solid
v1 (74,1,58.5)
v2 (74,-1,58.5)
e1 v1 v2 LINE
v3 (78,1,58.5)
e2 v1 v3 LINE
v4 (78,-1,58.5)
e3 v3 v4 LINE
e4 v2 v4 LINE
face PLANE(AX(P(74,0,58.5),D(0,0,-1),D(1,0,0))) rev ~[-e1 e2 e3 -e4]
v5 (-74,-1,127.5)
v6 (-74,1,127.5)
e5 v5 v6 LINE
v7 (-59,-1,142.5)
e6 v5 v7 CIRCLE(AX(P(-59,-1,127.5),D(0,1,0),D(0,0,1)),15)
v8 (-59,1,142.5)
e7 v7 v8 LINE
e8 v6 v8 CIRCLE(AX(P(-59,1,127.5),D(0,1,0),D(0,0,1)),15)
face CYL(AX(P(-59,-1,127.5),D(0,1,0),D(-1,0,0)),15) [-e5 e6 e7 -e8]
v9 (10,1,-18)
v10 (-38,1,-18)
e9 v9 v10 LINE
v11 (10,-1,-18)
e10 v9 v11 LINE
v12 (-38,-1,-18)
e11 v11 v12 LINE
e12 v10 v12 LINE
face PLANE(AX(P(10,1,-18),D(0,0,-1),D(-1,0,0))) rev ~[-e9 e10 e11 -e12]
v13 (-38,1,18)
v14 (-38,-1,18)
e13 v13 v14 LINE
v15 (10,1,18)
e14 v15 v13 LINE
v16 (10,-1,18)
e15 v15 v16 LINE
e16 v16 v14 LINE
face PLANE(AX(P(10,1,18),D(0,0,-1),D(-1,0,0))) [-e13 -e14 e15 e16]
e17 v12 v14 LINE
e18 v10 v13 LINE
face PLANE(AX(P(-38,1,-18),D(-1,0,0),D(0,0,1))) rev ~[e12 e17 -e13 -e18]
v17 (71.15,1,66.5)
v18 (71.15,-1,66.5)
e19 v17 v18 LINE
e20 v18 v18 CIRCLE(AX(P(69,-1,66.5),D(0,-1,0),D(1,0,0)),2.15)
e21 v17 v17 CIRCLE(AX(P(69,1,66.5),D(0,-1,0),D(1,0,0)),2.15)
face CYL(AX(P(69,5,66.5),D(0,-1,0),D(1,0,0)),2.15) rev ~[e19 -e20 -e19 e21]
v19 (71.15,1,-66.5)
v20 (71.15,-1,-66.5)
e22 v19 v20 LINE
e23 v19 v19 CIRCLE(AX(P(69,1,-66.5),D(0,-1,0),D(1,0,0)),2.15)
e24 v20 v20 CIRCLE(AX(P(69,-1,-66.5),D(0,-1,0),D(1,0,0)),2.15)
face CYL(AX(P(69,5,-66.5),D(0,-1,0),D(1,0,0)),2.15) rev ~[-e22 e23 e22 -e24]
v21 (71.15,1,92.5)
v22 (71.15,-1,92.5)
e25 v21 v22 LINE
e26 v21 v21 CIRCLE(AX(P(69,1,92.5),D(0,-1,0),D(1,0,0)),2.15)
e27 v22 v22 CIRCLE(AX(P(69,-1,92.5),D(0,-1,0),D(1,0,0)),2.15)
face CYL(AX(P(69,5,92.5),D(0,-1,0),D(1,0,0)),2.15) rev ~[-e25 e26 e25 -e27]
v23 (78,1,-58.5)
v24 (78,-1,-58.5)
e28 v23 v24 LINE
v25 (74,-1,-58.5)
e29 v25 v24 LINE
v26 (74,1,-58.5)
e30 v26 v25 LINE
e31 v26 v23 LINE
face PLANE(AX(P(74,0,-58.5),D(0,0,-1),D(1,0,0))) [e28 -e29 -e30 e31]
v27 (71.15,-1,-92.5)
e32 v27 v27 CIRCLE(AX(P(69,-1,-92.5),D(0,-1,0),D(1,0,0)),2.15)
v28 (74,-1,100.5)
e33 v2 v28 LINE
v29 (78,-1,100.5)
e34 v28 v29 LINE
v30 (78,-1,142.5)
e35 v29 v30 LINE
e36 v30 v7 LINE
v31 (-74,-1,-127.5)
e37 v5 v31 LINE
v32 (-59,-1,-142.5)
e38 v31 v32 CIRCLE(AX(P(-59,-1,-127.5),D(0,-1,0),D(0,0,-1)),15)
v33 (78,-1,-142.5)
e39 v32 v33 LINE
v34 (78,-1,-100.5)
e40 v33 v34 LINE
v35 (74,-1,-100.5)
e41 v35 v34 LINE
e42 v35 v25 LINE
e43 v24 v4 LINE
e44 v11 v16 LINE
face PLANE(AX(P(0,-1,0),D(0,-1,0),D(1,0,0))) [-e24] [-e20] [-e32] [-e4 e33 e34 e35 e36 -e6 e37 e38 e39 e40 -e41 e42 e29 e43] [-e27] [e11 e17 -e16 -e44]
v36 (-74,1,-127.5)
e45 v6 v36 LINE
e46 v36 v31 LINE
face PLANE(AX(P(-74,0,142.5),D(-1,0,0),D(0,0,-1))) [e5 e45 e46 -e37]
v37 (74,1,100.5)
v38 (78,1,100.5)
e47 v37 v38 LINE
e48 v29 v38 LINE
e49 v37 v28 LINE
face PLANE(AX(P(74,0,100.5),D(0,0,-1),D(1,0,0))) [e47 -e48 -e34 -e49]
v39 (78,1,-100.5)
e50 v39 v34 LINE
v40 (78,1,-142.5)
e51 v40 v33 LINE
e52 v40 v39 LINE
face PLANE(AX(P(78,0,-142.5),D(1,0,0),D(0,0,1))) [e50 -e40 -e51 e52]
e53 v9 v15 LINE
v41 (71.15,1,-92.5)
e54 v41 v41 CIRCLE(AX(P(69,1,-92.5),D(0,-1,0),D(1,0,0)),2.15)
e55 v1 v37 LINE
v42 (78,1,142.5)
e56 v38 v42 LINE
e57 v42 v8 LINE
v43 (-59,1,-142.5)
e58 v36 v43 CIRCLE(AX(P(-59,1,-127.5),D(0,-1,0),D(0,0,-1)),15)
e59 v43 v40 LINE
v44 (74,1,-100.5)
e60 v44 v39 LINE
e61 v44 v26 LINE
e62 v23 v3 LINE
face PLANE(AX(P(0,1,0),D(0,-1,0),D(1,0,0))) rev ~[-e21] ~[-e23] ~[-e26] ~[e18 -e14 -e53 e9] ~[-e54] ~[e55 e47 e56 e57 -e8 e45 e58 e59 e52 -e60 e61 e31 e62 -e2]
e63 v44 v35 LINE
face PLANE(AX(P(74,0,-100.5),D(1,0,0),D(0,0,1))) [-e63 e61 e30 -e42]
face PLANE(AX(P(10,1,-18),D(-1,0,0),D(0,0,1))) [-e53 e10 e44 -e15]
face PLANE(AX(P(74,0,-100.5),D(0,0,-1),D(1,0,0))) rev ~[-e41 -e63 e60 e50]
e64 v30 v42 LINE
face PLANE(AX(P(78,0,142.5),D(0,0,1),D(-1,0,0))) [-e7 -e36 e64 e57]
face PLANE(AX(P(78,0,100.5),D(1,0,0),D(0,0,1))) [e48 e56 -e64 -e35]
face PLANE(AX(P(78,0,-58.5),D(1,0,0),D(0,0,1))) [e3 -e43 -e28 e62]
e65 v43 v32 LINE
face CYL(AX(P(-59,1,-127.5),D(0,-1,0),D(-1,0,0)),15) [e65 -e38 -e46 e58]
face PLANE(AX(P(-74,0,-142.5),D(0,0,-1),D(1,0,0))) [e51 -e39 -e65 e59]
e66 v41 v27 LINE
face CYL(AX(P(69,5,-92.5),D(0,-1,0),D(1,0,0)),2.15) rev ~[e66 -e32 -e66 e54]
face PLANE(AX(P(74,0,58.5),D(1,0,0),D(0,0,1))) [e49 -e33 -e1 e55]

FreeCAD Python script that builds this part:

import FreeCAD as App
import Part
import Sketcher
from FreeCAD import Vector


def edges_at(feature, points):
    """Names of the edges that pass closest to the given points."""
    edges = feature.Shape.Edges
    near = lambda p: min(range(len(edges)), key=lambda i: edges[i].distToShape(Part.Vertex(*p))[0])
    return sorted({f"Edge{near(p) + 1}" for p in points})

doc = App.newDocument("Part")
body = doc.addObject("PartDesign::Body", "Body")

sketch1 = doc.addObject("Sketcher::SketchObject", "Sketch")
body.addObject(sketch1)
sketch1.AttachmentSupport = (doc.XZ_Plane, [""])
sketch1.MapMode = "FlatFace"
sketch1.addGeometry([
    Part.LineSegment(Vector(-74, 142.5, 0), Vector(-74, -142.5, 0)),
    Part.LineSegment(Vector(-74, -142.5, 0), Vector(78, -142.5, 0)),
    Part.LineSegment(Vector(78, -142.5, 0), Vector(78, -100.5, 0)),
    Part.LineSegment(Vector(78, -100.5, 0), Vector(74, -100.5, 0)),
    Part.LineSegment(Vector(74, -100.5, 0), Vector(74, -58.5, 0)),
    Part.LineSegment(Vector(74, -58.5, 0), Vector(78, -58.5, 0)),
    Part.LineSegment(Vector(78, -58.5, 0), Vector(78, 58.5, 0)),
    Part.LineSegment(Vector(78, 58.5, 0), Vector(74, 58.5, 0)),
    Part.LineSegment(Vector(74, 58.5, 0), Vector(74, 100.5, 0)),
    Part.LineSegment(Vector(74, 100.5, 0), Vector(78, 100.5, 0)),
    Part.LineSegment(Vector(78, 100.5, 0), Vector(78, 142.5, 0)),
    Part.LineSegment(Vector(78, 142.5, 0), Vector(-74, 142.5, 0)),
], False)
sketch1.addConstraint([
    Sketcher.Constraint("Coincident", 0, 2, 1, 1),
    Sketcher.Constraint("Coincident", 1, 2, 2, 1),
    Sketcher.Constraint("Coincident", 2, 2, 3, 1),
    Sketcher.Constraint("Coincident", 3, 2, 4, 1),
    Sketcher.Constraint("Coincident", 4, 2, 5, 1),
    Sketcher.Constraint("Coincident", 5, 2, 6, 1),
    Sketcher.Constraint("Coincident", 6, 2, 7, 1),
    Sketcher.Constraint("Coincident", 7, 2, 8, 1),
    Sketcher.Constraint("Coincident", 8, 2, 9, 1),
    Sketcher.Constraint("Coincident", 9, 2, 10, 1),
    Sketcher.Constraint("Coincident", 10, 2, 11, 1),
    Sketcher.Constraint("Coincident", 11, 2, 0, 1),
    Sketcher.Constraint("Vertical", 0),
    Sketcher.Constraint("Horizontal", 1),
    Sketcher.Constraint("Vertical", 2),
    Sketcher.Constraint("Horizontal", 3),
    Sketcher.Constraint("Vertical", 4),
    Sketcher.Constraint("Horizontal", 5),
    Sketcher.Constraint("Vertical", 6),
    Sketcher.Constraint("Horizontal", 7),
    Sketcher.Constraint("Vertical", 8),
    Sketcher.Constraint("Horizontal", 9),
    Sketcher.Constraint("Vertical", 10),
    Sketcher.Constraint("Horizontal", 11),
    Sketcher.Constraint("Symmetric", 4, 2, 7, 2, -1),
    Sketcher.Constraint("Symmetric", 2, 2, 9, 2, -1),
    Sketcher.Constraint("Vertical", 2, 2, 5, 2),
    Sketcher.Constraint("Equal", 2, 4),
    Sketcher.Constraint("Equal", 8, 10),
    Sketcher.Constraint("DistanceX", 1, 1, 1, 2, 152.0),
    Sketcher.Constraint("DistanceX", 3, 2, 3, 1, 4.0),
    Sketcher.Constraint("DistanceY", 0, 2, 0, 1, 285.0),
    Sketcher.Constraint("DistanceY", 2, 1, 2, 2, 42.0),
    Sketcher.Constraint("DistanceX", 0, 2, -1, 1, 74.0),
])
pad1 = doc.addObject("PartDesign::Pad", "Pad")
body.addObject(pad1)
pad1.Profile = sketch1
pad1.Length = 2
pad1.Midplane = True
doc.recompute()

fillet = doc.addObject("PartDesign::Fillet", "Fillet")
body.addObject(fillet)
fillet.Base = (pad1, edges_at(pad1, [(-74, 0, 142.5), (-74, 0, -142.5)]))
fillet.Radius = 15

sketch2 = doc.addObject("Sketcher::SketchObject", "Sketch001")
body.addObject(sketch2)
sketch2.AttachmentSupport = (doc.XZ_Plane, [""])
sketch2.MapMode = "FlatFace"
sketch2.AttachmentOffset = App.Placement(Vector(0, 0, -1), App.Rotation())
sketch2.addGeometry([
    Part.Circle(Vector(69, 92.5, 0), Vector(0, 0, 1), 2.1),
    Part.Circle(Vector(69, 66.5, 0), Vector(0, 0, 1), 2.1),
    Part.Circle(Vector(69, -92.5, 0), Vector(0, 0, 1), 2.1),
    Part.Circle(Vector(69, -66.5, 0), Vector(0, 0, 1), 2.1),
], False)
sketch2.addConstraint([
    Sketcher.Constraint("Equal", 0, 1),
    Sketcher.Constraint("Equal", 1, 2),
    Sketcher.Constraint("Equal", 2, 3),
    Sketcher.Constraint("Symmetric", 0, 3, 2, 3, -1),
    Sketcher.Constraint("Symmetric", 1, 3, 3, 3, -1),
    Sketcher.Constraint("Vertical", 0, 3, 1, 3),
    Sketcher.Constraint("Diameter", 0, 4.3),
    Sketcher.Constraint("DistanceX", -1, 1, 0, 3, 69.0),
    Sketcher.Constraint("DistanceY", 1, 3, 0, 3, 26.0),
    Sketcher.Constraint("DistanceY", 2, 3, 1, 3, 159.0),
])
doc.recompute()
hole = doc.addObject("PartDesign::Hole", "Hole")
body.addObject(hole)
hole.Profile = sketch2
hole.ThreadType = "None"
hole.Diameter = 4.3
hole.DepthType = "Dimension"
hole.Depth = 4
hole.DrillPoint = "Angled"
hole.DrillPointAngle = 118
hole.Reversed = True

sketch3 = doc.addObject("Sketcher::SketchObject", "Sketch002")
body.addObject(sketch3)
sketch3.AttachmentSupport = (doc.XZ_Plane, [""])
sketch3.MapMode = "FlatFace"
sketch3.AttachmentOffset = App.Placement(Vector(0, 0, -1), App.Rotation())
sketch3.addGeometry([
    Part.LineSegment(Vector(10, 18, 0), Vector(10, -18, 0)),
    Part.LineSegment(Vector(10, -18, 0), Vector(-38, -18, 0)),
    Part.LineSegment(Vector(-38, -18, 0), Vector(-38, 18, 0)),
    Part.LineSegment(Vector(-38, 18, 0), Vector(10, 18, 0)),
], False)
sketch3.addConstraint([
    Sketcher.Constraint("Coincident", 0, 2, 1, 1),
    Sketcher.Constraint("Coincident", 1, 2, 2, 1),
    Sketcher.Constraint("Coincident", 2, 2, 3, 1),
    Sketcher.Constraint("Coincident", 3, 2, 0, 1),
    Sketcher.Constraint("Vertical", 0),
    Sketcher.Constraint("Horizontal", 1),
    Sketcher.Constraint("Vertical", 2),
    Sketcher.Constraint("Horizontal", 3),
    Sketcher.Constraint("DistanceX", 1, 2, 1, 1, 48.0),
    Sketcher.Constraint("DistanceY", 0, 2, 0, 1, 36.0),
    Sketcher.Constraint("DistanceX", -1, 1, 0, 2, 10.0),
    Sketcher.Constraint("DistanceY", 0, 2, -1, 1, 18.0),
])
pocket1 = doc.addObject("PartDesign::Pocket", "Pocket")
body.addObject(pocket1)
pocket1.Profile = sketch3
pocket1.Length = 2
pocket1.Reversed = True

doc.recompute()
